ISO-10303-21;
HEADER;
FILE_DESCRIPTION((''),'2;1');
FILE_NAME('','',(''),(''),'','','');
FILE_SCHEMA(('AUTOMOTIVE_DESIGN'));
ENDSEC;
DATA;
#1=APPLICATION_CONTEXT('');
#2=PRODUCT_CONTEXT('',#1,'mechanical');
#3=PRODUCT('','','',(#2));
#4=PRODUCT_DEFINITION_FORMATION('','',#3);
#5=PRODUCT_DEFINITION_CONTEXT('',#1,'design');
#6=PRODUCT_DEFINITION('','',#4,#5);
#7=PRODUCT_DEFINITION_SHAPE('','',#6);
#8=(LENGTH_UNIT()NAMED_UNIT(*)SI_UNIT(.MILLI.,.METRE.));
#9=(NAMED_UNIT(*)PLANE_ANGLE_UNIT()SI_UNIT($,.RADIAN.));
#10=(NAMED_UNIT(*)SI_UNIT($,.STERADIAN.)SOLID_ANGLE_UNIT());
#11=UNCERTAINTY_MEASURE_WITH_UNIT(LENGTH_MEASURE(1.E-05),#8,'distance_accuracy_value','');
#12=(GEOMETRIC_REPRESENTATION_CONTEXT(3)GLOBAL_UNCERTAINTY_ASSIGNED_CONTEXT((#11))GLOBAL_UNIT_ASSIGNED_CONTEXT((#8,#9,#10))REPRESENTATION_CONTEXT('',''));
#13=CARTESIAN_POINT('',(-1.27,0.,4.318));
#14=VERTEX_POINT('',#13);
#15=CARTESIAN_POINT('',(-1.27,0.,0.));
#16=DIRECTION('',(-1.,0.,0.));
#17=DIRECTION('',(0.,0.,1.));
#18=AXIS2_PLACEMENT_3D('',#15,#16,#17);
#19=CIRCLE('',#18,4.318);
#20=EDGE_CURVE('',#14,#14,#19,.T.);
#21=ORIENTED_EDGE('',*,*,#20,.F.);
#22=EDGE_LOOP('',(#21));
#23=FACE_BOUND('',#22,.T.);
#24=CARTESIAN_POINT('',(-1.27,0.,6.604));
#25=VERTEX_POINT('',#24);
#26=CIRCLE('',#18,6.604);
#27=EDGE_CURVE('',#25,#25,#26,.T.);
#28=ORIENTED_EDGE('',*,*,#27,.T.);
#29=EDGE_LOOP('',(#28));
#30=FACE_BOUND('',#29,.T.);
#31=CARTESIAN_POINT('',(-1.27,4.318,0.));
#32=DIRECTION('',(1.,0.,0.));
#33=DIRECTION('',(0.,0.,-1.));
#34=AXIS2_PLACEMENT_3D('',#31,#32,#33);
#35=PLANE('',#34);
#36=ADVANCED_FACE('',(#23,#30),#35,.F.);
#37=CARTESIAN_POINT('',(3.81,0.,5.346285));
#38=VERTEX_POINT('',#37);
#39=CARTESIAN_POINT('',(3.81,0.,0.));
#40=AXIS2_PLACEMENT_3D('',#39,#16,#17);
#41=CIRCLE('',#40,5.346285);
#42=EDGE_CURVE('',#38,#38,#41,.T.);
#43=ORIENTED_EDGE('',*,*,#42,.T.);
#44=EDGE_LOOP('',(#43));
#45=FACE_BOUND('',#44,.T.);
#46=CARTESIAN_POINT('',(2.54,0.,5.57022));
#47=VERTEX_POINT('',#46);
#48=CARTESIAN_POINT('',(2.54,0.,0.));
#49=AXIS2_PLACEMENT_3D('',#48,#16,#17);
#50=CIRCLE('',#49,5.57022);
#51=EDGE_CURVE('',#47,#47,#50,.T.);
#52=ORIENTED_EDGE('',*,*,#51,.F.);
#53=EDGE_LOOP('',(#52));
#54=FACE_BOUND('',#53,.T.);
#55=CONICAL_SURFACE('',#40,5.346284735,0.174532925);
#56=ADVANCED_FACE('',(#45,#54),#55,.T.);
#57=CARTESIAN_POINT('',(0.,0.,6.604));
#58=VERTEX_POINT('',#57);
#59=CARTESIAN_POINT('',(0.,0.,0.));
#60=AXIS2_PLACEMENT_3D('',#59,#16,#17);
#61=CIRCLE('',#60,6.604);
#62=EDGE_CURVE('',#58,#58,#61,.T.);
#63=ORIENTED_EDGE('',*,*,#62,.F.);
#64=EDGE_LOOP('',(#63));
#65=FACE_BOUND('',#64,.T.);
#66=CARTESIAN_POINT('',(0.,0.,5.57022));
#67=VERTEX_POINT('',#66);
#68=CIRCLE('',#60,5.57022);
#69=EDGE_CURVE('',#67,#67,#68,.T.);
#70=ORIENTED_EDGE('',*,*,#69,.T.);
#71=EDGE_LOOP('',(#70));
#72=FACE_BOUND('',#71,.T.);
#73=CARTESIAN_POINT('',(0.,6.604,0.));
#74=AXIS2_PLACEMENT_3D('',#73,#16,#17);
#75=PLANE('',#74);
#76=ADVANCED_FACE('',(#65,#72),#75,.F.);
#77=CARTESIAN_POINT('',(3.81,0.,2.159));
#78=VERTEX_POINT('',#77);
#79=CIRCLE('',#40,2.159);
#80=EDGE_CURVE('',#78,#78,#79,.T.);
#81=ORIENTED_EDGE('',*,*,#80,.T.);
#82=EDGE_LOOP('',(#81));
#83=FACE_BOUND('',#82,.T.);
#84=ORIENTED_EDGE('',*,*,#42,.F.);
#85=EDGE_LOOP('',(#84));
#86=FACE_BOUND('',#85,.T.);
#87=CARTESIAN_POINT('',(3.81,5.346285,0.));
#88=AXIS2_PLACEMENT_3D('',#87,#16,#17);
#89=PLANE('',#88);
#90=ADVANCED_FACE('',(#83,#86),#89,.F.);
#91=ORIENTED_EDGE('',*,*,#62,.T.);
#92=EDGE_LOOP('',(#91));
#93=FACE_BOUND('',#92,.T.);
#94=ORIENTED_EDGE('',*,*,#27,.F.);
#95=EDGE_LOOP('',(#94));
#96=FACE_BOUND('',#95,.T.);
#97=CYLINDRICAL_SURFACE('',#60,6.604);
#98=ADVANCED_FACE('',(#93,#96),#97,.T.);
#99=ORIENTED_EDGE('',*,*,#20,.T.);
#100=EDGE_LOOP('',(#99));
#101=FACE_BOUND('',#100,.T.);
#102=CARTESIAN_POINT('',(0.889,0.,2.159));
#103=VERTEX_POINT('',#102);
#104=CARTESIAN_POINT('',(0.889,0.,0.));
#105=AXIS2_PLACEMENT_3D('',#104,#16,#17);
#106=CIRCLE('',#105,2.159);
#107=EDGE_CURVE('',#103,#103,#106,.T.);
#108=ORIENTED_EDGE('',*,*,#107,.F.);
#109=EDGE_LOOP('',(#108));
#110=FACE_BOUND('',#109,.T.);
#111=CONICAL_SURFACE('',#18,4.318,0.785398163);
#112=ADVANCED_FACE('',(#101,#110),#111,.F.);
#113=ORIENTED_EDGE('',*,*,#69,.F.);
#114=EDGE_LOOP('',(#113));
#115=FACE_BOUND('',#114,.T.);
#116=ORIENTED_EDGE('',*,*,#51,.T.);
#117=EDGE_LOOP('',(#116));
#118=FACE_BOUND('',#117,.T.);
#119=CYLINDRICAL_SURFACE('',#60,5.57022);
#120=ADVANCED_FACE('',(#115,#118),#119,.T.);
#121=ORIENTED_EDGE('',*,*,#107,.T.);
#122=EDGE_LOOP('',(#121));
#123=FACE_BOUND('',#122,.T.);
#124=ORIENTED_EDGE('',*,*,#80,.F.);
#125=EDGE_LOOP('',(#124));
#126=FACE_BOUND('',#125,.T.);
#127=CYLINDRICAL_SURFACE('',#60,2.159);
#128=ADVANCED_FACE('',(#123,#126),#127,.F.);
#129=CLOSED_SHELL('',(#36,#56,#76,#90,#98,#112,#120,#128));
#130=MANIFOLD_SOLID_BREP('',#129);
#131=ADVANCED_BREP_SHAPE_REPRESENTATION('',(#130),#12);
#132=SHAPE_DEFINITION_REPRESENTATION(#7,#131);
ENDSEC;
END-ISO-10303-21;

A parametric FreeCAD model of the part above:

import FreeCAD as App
import Part
import Sketcher
Q = App.Units.Quantity


def add_polygon(sketch, points):
    """Adds a closed chain of lines whose ends are joined by coincident constraints."""
    first, n = sketch.GeometryCount, len(points)
    for a, b in zip(points, points[1:] + points[:1]):
        sketch.addGeometry(Part.LineSegment(App.Vector(*a, 0), App.Vector(*b, 0)), False)
    for i in range(n):
        sketch.addConstraint(Sketcher.Constraint("Coincident", first + i, 2, first + (i + 1) % n, 1))

doc = App.newDocument("Part")
body = doc.addObject("PartDesign::Body", "Body")

# Sketch on XY plane
sketch1 = doc.addObject("Sketcher::SketchObject", "Sketch")
body.addObject(sketch1)
sketch1.AttachmentSupport = (doc.XY_Plane, [""])
sketch1.MapMode = "FlatFace"
add_polygon(sketch1, [(0.9, 2.2), (3.8, 2.2), (3.8, 5.3), (2.5, 5.6), (0, 5.6), (0, 6.6), (-1.3, 6.6), (-1.3, 4.3)])  # lines 0-7
sketch1.addConstraint(Sketcher.Constraint("Horizontal", 0))
sketch1.addConstraint(Sketcher.Constraint("Vertical", 1))
sketch1.addConstraint(Sketcher.Constraint("Horizontal", 3))
sketch1.addConstraint(Sketcher.Constraint("Vertical", 4))
sketch1.addConstraint(Sketcher.Constraint("Horizontal", 5))
sketch1.addConstraint(Sketcher.Constraint("Vertical", 6))
sketch1.addConstraint(Sketcher.Constraint("PointOnObject", 3, 2, -2))
sketch1.addConstraint(Sketcher.Constraint("DistanceX", 3, 2, 3, 1, Q("0.1 in")))
sketch1.addConstraint(Sketcher.Constraint("Angle", 2, Q("170 deg")))
sketch1.addConstraint(Sketcher.Constraint("Angle", 7, Q("-45 deg")))
sketch1.addConstraint(Sketcher.Constraint("DistanceX", 5, 2, 5, 1, Q("0.05 in")))
sketch1.addConstraint(Sketcher.Constraint("DistanceY", 6, 2, 6, 1, Q("0.09 in")))
sketch1.addConstraint(Sketcher.Constraint("DistanceX", 5, 2, 1, 2, Q("0.2 in")))
sketch1.addConstraint(Sketcher.Constraint("DistanceX", 0, 1, 0, 2, Q("0.115 in")))
sketch1.addConstraint(Sketcher.Constraint("DistanceY", -1, 1, 4, 2, Q("0.26 in")))
sketch1.addConstraint(Sketcher.Constraint("DistanceY", 4, 1, 4, 2, Q("0.0407 in")))
revolution = doc.addObject("PartDesign::Revolution", "Revolution")
body.addObject(revolution)
revolution.Profile = sketch1
revolution.ReferenceAxis = (sketch1, ["H_Axis"])
revolution.Angle = 360

doc.recompute()
